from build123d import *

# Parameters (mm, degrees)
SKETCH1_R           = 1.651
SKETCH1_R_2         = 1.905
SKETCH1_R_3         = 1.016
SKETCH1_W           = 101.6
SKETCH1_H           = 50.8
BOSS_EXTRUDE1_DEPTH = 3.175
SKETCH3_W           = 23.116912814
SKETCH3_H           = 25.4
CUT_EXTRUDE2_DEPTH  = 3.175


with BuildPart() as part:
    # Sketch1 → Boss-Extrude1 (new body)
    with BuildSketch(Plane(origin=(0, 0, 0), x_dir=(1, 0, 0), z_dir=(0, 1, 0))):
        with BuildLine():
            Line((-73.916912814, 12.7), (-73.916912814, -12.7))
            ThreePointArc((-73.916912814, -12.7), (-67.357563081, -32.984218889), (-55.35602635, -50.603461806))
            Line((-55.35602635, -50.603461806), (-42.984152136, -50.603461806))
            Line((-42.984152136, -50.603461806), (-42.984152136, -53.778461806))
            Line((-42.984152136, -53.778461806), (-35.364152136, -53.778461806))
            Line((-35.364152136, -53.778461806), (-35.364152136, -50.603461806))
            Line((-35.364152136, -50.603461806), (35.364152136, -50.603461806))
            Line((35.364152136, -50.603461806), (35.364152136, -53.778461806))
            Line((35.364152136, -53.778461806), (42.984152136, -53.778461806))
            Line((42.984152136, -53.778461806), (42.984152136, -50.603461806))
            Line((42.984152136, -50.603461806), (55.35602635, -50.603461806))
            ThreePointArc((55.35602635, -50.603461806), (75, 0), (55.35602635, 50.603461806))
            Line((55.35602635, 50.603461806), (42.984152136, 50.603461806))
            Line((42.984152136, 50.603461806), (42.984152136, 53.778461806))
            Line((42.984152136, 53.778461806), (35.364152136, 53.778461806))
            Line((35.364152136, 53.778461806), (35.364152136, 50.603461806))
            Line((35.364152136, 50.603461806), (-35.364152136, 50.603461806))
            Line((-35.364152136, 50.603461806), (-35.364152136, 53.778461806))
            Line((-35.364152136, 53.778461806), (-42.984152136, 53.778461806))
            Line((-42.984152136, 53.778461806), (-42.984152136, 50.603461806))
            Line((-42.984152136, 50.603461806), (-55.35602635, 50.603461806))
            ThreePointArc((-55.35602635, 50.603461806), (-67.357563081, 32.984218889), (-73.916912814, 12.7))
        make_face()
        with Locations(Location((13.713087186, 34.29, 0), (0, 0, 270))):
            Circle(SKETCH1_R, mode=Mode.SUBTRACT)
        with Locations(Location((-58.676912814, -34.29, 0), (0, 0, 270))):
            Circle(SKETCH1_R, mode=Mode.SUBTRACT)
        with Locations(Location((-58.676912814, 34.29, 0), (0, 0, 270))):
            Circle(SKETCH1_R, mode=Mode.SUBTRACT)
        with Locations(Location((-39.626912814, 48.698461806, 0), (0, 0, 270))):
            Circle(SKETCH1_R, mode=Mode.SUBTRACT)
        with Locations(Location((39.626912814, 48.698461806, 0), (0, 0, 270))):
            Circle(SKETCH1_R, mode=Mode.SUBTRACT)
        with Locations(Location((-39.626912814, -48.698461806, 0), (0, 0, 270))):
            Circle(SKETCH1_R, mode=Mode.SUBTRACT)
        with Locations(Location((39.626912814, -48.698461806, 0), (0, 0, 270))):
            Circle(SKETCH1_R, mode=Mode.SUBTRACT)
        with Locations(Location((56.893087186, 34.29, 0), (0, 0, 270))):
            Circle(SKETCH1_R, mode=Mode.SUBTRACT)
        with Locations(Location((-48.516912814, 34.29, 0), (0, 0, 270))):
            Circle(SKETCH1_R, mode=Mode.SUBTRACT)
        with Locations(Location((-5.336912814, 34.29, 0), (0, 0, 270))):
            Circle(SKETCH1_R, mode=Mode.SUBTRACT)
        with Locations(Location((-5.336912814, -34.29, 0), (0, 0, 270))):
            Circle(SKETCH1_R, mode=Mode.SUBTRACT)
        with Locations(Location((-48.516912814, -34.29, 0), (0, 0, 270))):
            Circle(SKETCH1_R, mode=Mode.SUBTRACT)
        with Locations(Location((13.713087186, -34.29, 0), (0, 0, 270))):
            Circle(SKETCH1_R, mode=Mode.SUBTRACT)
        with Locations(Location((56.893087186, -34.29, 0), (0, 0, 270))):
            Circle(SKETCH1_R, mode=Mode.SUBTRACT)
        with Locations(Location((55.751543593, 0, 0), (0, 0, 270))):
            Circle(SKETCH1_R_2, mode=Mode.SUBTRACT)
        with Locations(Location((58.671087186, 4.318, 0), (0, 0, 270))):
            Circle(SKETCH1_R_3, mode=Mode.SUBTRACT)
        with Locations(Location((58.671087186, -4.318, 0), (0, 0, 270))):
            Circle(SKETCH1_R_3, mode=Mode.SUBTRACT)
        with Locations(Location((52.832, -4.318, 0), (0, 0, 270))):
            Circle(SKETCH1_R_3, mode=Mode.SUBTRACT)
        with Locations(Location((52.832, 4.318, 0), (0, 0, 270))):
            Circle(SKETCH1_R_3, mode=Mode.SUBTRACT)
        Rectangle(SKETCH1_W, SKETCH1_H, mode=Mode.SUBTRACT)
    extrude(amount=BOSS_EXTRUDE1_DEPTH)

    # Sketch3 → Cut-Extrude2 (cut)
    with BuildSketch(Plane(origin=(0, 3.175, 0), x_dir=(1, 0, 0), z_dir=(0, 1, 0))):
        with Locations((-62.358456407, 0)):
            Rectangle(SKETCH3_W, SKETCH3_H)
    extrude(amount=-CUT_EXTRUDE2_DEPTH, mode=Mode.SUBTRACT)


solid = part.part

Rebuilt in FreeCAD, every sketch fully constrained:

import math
import FreeCAD as App
import Part
import Sketcher
from FreeCAD import Vector
Q = App.Units.Quantity

doc = App.newDocument("Part")
body = doc.addObject("PartDesign::Body", "Body")

sketch1 = body.newObject("Sketcher::SketchObject", "Sketch")
sketch1.AttachmentSupport = (doc.getObject("XZ_Plane"), [""])
sketch1.MapMode = "FlatFace"
sketch1.addGeometry([
    Part.LineSegment(Vector(-73.916913, -12.7, 0), Vector(-73.916913, 12.7, 0)),
    Part.ArcOfCircle(Part.Circle(Vector(0, 0, 0), Vector(0, 0, 1), 75), math.radians(137.568147), math.radians(170.25094)),
    Part.LineSegment(Vector(-55.356026, 50.603462, 0), Vector(-42.984152, 50.603462, 0)),
    Part.LineSegment(Vector(-42.984152, 50.603462, 0), Vector(-42.984152, 53.778462, 0)),
    Part.LineSegment(Vector(-42.984152, 53.778462, 0), Vector(-35.364152, 53.778462, 0)),
    Part.LineSegment(Vector(-35.364152, 53.778462, 0), Vector(-35.364152, 50.603462, 0)),
    Part.LineSegment(Vector(-35.364152, 50.603462, 0), Vector(35.364152, 50.603462, 0)),
    Part.LineSegment(Vector(35.364152, 50.603462, 0), Vector(35.364152, 53.778462, 0)),
    Part.LineSegment(Vector(35.364152, 53.778462, 0), Vector(42.984152, 53.778462, 0)),
    Part.LineSegment(Vector(42.984152, 53.778462, 0), Vector(42.984152, 50.603462, 0)),
    Part.LineSegment(Vector(42.984152, 50.603462, 0), Vector(55.356026, 50.603462, 0)),
    Part.ArcOfCircle(Part.Circle(Vector(0, 0, 0), Vector(0, 0, 1), 75), math.radians(-42.431853), math.radians(42.431853)),
    Part.LineSegment(Vector(55.356026, -50.603462, 0), Vector(42.984152, -50.603462, 0)),
    Part.LineSegment(Vector(42.984152, -50.603462, 0), Vector(42.984152, -53.778462, 0)),
    Part.LineSegment(Vector(42.984152, -53.778462, 0), Vector(35.364152, -53.778462, 0)),
    Part.LineSegment(Vector(35.364152, -53.778462, 0), Vector(35.364152, -50.603462, 0)),
    Part.LineSegment(Vector(35.364152, -50.603462, 0), Vector(-35.364152, -50.603462, 0)),
    Part.LineSegment(Vector(-35.364152, -50.603462, 0), Vector(-35.364152, -53.778462, 0)),
    Part.LineSegment(Vector(-35.364152, -53.778462, 0), Vector(-42.984152, -53.778462, 0)),
    Part.LineSegment(Vector(-42.984152, -53.778462, 0), Vector(-42.984152, -50.603462, 0)),
    Part.LineSegment(Vector(-42.984152, -50.603462, 0), Vector(-55.356026, -50.603462, 0)),
    Part.ArcOfCircle(Part.Circle(Vector(0, 0, 0), Vector(0, 0, 1), 75), math.radians(-170.25094), math.radians(-137.568147)),
    Part.Circle(Vector(-39.626913, 48.698462, 0), Vector(0, 0, 1), 1.651),
    Part.Circle(Vector(-58.676913, 34.29, 0), Vector(0, 0, 1), 1.651),
    Part.Circle(Vector(-48.516913, 34.29, 0), Vector(0, 0, 1), 1.651),
    Part.Circle(Vector(-5.336913, 34.29, 0), Vector(0, 0, 1), 1.651),
    Part.Circle(Vector(13.713087, 34.29, 0), Vector(0, 0, 1), 1.651),
    Part.Circle(Vector(39.626913, 48.698462, 0), Vector(0, 0, 1), 1.651),
    Part.Circle(Vector(56.893087, 34.29, 0), Vector(0, 0, 1), 1.651),
    Part.LineSegment(Vector(50.8, 25.4, 0), Vector(-50.8, 25.4, 0)),
    Part.LineSegment(Vector(-50.8, 25.4, 0), Vector(-50.8, -25.4, 0)),
    Part.LineSegment(Vector(-50.8, -25.4, 0), Vector(50.8, -25.4, 0)),
    Part.LineSegment(Vector(50.8, -25.4, 0), Vector(50.8, 25.4, 0)),
    Part.Circle(Vector(52.832, 4.318, 0), Vector(0, 0, 1), 1.016),
    Part.Circle(Vector(58.671087, 4.318, 0), Vector(0, 0, 1), 1.016),
    Part.Circle(Vector(-58.676913, -34.29, 0), Vector(0, 0, 1), 1.651),
    Part.Circle(Vector(-48.516913, -34.29, 0), Vector(0, 0, 1), 1.651),
    Part.Circle(Vector(-39.626913, -48.698462, 0), Vector(0, 0, 1), 1.651),
    Part.Circle(Vector(-5.336913, -34.29, 0), Vector(0, 0, 1), 1.651),
    Part.Circle(Vector(55.751544, 0, 0), Vector(0, 0, 1), 1.905),
    Part.Circle(Vector(52.832, -4.318, 0), Vector(0, 0, 1), 1.016),
    Part.Circle(Vector(58.671087, -4.318, 0), Vector(0, 0, 1), 1.016),
    Part.Circle(Vector(13.713087, -34.29, 0), Vector(0, 0, 1), 1.651),
    Part.Circle(Vector(56.893087, -34.29, 0), Vector(0, 0, 1), 1.651),
    Part.Circle(Vector(39.626913, -48.698462, 0), Vector(0, 0, 1), 1.651),
], False)
sketch1.addConstraint([
    Sketcher.Constraint("Coincident", 0, 2, 1, 2),
    Sketcher.Constraint("Coincident", 1, 1, 2, 1),
    Sketcher.Constraint("Coincident", 2, 2, 3, 1),
    Sketcher.Constraint("Coincident", 3, 2, 4, 1),
    Sketcher.Constraint("Coincident", 4, 2, 5, 1),
    Sketcher.Constraint("Coincident", 5, 2, 6, 1),
    Sketcher.Constraint("Coincident", 6, 2, 7, 1),
    Sketcher.Constraint("Coincident", 7, 2, 8, 1),
    Sketcher.Constraint("Coincident", 8, 2, 9, 1),
    Sketcher.Constraint("Coincident", 9, 2, 10, 1),
    Sketcher.Constraint("Coincident", 10, 2, 11, 2),
    Sketcher.Constraint("Coincident", 11, 1, 12, 1),
    Sketcher.Constraint("Coincident", 12, 2, 13, 1),
    Sketcher.Constraint("Coincident", 13, 2, 14, 1),
    Sketcher.Constraint("Coincident", 14, 2, 15, 1),
    Sketcher.Constraint("Coincident", 15, 2, 16, 1),
    Sketcher.Constraint("Coincident", 16, 2, 17, 1),
    Sketcher.Constraint("Coincident", 17, 2, 18, 1),
    Sketcher.Constraint("Coincident", 18, 2, 19, 1),
    Sketcher.Constraint("Coincident", 19, 2, 20, 1),
    Sketcher.Constraint("Coincident", 20, 2, 21, 2),
    Sketcher.Constraint("Coincident", 21, 1, 0, 1),
    Sketcher.Constraint("Coincident", 29, 2, 30, 1),
    Sketcher.Constraint("Coincident", 30, 2, 31, 1),
    Sketcher.Constraint("Coincident", 31, 2, 32, 1),
    Sketcher.Constraint("Coincident", 32, 2, 29, 1),
    Sketcher.Constraint("Vertical", 0),
    Sketcher.Constraint("Horizontal", 2),
    Sketcher.Constraint("Vertical", 3),
    Sketcher.Constraint("Horizontal", 4),
    Sketcher.Constraint("Vertical", 5),
    Sketcher.Constraint("Horizontal", 6),
    Sketcher.Constraint("Vertical", 7),
    Sketcher.Constraint("Horizontal", 8),
    Sketcher.Constraint("Vertical", 9),
    Sketcher.Constraint("Horizontal", 10),
    Sketcher.Constraint("Horizontal", 12),
    Sketcher.Constraint("Vertical", 13),
    Sketcher.Constraint("Horizontal", 14),
    Sketcher.Constraint("Vertical", 15),
    Sketcher.Constraint("Horizontal", 16),
    Sketcher.Constraint("Vertical", 17),
    Sketcher.Constraint("Horizontal", 18),
    Sketcher.Constraint("Vertical", 19),
    Sketcher.Constraint("Horizontal", 20),
    Sketcher.Constraint("Horizontal", 29),
    Sketcher.Constraint("Vertical", 30),
    Sketcher.Constraint("Horizontal", 31),
    Sketcher.Constraint("Vertical", 32),
    Sketcher.Constraint("Coincident", 1, 3, -1, 1),
    Sketcher.Constraint("Coincident", 11, 3, -1, 1),
    Sketcher.Constraint("Coincident", 21, 3, -1, 1),
    Sketcher.Constraint("Equal", 1, 11),
    Sketcher.Constraint("Equal", 11, 21),
    Sketcher.Constraint("Equal", 22, 23),
    Sketcher.Constraint("Equal", 23, 24),
    Sketcher.Constraint("Equal", 24, 25),
    Sketcher.Constraint("Equal", 25, 26),
    Sketcher.Constraint("Equal", 26, 27),
    Sketcher.Constraint("Equal", 27, 28),
    Sketcher.Constraint("Equal", 33, 34),
    Sketcher.Constraint("Equal", 28, 35),
    Sketcher.Constraint("Equal", 35, 36),
    Sketcher.Constraint("Equal", 36, 37),
    Sketcher.Constraint("Equal", 37, 38),
    Sketcher.Constraint("Equal", 34, 40),
    Sketcher.Constraint("Equal", 40, 41),
    Sketcher.Constraint("Equal", 38, 42),
    Sketcher.Constraint("Equal", 42, 43),
    Sketcher.Constraint("Equal", 43, 44),
    Sketcher.Constraint("Symmetric", 27, 3, 37, 3, -1, 1),
    Sketcher.Constraint("Symmetric", 22, 3, 44, 3, -1, 1),
    Sketcher.Constraint("Symmetric", 2, 2, 12, 2, -1, 1),
    Sketcher.Constraint("Symmetric", 4, 2, 14, 2, -1, 1),
    Sketcher.Constraint("Symmetric", 6, 2, 16, 2, -1, 1),
    Sketcher.Constraint("Symmetric", 8, 2, 18, 2, -1, 1),
    Sketcher.Constraint("Symmetric", 29, 2, 31, 2, -1, 1),
    Sketcher.Constraint("Symmetric", 22, 3, 27, 3, -2),
    Sketcher.Constraint("Symmetric", 4, 2, 7, 2, -2),
    Sketcher.Constraint("Symmetric", 2, 2, 9, 2, -2),
    Sketcher.Constraint("Symmetric", 23, 3, 35, 3, -1),
    Sketcher.Constraint("Symmetric", 24, 3, 36, 3, -1),
    Sketcher.Constraint("Symmetric", 25, 3, 38, 3, -1),
    Sketcher.Constraint("Symmetric", 33, 3, 40, 3, -1),
    Sketcher.Constraint("Symmetric", 34, 3, 41, 3, -1),
    Sketcher.Constraint("Symmetric", 26, 3, 42, 3, -1),
    Sketcher.Constraint("Symmetric", 28, 3, 43, 3, -1),
    Sketcher.Constraint("PointOnObject", 39, 3, -1),
    Sketcher.Constraint("Horizontal", 23, 3, 24, 3),
    Sketcher.Constraint("Horizontal", 24, 3, 25, 3),
    Sketcher.Constraint("Horizontal", 25, 3, 26, 3),
    Sketcher.Constraint("Horizontal", 26, 3, 28, 3),
    Sketcher.Constraint("Horizontal", 33, 3, 34, 3),
    Sketcher.Constraint("Horizontal", 2, 2, 5, 2),
    Sketcher.Constraint("Horizontal", 16, 2, 19, 2),
    Sketcher.Constraint("Diameter", 22, Q("0.13 in")),
    Sketcher.Constraint("Diameter", 33, Q("0.08 in")),
    Sketcher.Constraint("Diameter", 39, Q("0.15 in")),
    Sketcher.Constraint("DistanceX", 29, 2, 29, 1, Q("4 in")),
    Sketcher.Constraint("DistanceY", 0, 1, 0, 2, Q("1 in")),
    Sketcher.Constraint("DistanceY", 30, 2, 30, 1, Q("2 in")),
    Sketcher.Constraint("DistanceX", 4, 1, 4, 2, Q("0.3 in")),
    Sketcher.Constraint("DistanceX", 0, 2, 24, 3, Q("1 in")),
    Sketcher.Constraint("DistanceX", 23, 3, 24, 3, Q("0.4 in")),
    Sketcher.Constraint("DistanceX", 24, 3, 25, 3, Q("1.7 in")),
    Sketcher.Constraint("DistanceX", 22, 3, 26, 3, Q("2.1 in")),
    Sketcher.Constraint("DistanceX", 26, 3, 28, 3, Q("1.7 in")),
    Sketcher.Constraint("DistanceY", 35, 3, 23, 3, Q("2.7 in")),
    Sketcher.Constraint("DistanceY", 22, 3, 3, 2, Q("0.2 in")),
    Sketcher.Constraint("DistanceY", 3, 1, 3, 2, Q("0.125 in")),
    Sketcher.Constraint("DistanceX", -1, 1, 33, 3, Q("2.08 in")),
    Sketcher.Constraint("DistanceY", -1, 1, 33, 3, Q("0.17 in")),
    Sketcher.Constraint("Radius", 1, Q("75 mm")),
    Sketcher.Constraint("DistanceX", 23, 3, 22, 3, Q("0.75 in")),
    Sketcher.Constraint("DistanceX", 28, 3, 34, 3, Q("0.07 in")),
    Sketcher.Constraint("DistanceX", 2, 1, 2, 2, Q("12.371874 mm")),
    Sketcher.Constraint("DistanceX", 6, 1, 6, 2, Q("70.728304 mm")),
    Sketcher.Constraint("DistanceX", 27, 3, 39, 3, Q("16.124631 mm")),
])
pad1 = body.newObject("PartDesign::Pad", "Pad")
pad1.Profile = sketch1
pad1.Length = Q("0.125 in")
pad1.Reversed = True

sketch2 = body.newObject("Sketcher::SketchObject", "Sketch001")
sketch2.AttachmentSupport = (doc.getObject("XZ_Plane"), [""])
sketch2.MapMode = "FlatFace"
sketch2.AttachmentOffset = App.Placement(Vector(0, 0, -0.125 * 25.4), App.Rotation())
sketch2.addGeometry([
    Part.LineSegment(Vector(-73.916913, -12.7, 0), Vector(-73.916913, 12.7, 0)),
    Part.LineSegment(Vector(-73.916913, 12.7, 0), Vector(-50.8, 12.7, 0)),
    Part.LineSegment(Vector(-50.8, 12.7, 0), Vector(-50.8, -12.7, 0)),
    Part.LineSegment(Vector(-50.8, -12.7, 0), Vector(-73.916913, -12.7, 0)),
], False)
sketch2.addConstraint([
    Sketcher.Constraint("Coincident", 0, 2, 1, 1),
    Sketcher.Constraint("Coincident", 1, 2, 2, 1),
    Sketcher.Constraint("Coincident", 2, 2, 3, 1),
    Sketcher.Constraint("Coincident", 3, 2, 0, 1),
    Sketcher.Constraint("Vertical", 0),
    Sketcher.Constraint("Horizontal", 1),
    Sketcher.Constraint("Vertical", 2),
    Sketcher.Constraint("Horizontal", 3),
    Sketcher.Constraint("DistanceY", 0, 1, 0, 2, Q("1 in")),
    Sketcher.Constraint("DistanceX", 1, 2, -1, 1, Q("2 in")),
    Sketcher.Constraint("DistanceY", -1, 1, 0, 2, Q("0.5 in")),
    Sketcher.Constraint("DistanceX", 1, 1, 1, 2, Q("23.116913 mm")),
])
pocket1 = body.newObject("PartDesign::Pocket", "Pocket")
pocket1.Profile = sketch2
pocket1.Length = Q("0.125 in")
pocket1.Reversed = True

doc.recompute()
